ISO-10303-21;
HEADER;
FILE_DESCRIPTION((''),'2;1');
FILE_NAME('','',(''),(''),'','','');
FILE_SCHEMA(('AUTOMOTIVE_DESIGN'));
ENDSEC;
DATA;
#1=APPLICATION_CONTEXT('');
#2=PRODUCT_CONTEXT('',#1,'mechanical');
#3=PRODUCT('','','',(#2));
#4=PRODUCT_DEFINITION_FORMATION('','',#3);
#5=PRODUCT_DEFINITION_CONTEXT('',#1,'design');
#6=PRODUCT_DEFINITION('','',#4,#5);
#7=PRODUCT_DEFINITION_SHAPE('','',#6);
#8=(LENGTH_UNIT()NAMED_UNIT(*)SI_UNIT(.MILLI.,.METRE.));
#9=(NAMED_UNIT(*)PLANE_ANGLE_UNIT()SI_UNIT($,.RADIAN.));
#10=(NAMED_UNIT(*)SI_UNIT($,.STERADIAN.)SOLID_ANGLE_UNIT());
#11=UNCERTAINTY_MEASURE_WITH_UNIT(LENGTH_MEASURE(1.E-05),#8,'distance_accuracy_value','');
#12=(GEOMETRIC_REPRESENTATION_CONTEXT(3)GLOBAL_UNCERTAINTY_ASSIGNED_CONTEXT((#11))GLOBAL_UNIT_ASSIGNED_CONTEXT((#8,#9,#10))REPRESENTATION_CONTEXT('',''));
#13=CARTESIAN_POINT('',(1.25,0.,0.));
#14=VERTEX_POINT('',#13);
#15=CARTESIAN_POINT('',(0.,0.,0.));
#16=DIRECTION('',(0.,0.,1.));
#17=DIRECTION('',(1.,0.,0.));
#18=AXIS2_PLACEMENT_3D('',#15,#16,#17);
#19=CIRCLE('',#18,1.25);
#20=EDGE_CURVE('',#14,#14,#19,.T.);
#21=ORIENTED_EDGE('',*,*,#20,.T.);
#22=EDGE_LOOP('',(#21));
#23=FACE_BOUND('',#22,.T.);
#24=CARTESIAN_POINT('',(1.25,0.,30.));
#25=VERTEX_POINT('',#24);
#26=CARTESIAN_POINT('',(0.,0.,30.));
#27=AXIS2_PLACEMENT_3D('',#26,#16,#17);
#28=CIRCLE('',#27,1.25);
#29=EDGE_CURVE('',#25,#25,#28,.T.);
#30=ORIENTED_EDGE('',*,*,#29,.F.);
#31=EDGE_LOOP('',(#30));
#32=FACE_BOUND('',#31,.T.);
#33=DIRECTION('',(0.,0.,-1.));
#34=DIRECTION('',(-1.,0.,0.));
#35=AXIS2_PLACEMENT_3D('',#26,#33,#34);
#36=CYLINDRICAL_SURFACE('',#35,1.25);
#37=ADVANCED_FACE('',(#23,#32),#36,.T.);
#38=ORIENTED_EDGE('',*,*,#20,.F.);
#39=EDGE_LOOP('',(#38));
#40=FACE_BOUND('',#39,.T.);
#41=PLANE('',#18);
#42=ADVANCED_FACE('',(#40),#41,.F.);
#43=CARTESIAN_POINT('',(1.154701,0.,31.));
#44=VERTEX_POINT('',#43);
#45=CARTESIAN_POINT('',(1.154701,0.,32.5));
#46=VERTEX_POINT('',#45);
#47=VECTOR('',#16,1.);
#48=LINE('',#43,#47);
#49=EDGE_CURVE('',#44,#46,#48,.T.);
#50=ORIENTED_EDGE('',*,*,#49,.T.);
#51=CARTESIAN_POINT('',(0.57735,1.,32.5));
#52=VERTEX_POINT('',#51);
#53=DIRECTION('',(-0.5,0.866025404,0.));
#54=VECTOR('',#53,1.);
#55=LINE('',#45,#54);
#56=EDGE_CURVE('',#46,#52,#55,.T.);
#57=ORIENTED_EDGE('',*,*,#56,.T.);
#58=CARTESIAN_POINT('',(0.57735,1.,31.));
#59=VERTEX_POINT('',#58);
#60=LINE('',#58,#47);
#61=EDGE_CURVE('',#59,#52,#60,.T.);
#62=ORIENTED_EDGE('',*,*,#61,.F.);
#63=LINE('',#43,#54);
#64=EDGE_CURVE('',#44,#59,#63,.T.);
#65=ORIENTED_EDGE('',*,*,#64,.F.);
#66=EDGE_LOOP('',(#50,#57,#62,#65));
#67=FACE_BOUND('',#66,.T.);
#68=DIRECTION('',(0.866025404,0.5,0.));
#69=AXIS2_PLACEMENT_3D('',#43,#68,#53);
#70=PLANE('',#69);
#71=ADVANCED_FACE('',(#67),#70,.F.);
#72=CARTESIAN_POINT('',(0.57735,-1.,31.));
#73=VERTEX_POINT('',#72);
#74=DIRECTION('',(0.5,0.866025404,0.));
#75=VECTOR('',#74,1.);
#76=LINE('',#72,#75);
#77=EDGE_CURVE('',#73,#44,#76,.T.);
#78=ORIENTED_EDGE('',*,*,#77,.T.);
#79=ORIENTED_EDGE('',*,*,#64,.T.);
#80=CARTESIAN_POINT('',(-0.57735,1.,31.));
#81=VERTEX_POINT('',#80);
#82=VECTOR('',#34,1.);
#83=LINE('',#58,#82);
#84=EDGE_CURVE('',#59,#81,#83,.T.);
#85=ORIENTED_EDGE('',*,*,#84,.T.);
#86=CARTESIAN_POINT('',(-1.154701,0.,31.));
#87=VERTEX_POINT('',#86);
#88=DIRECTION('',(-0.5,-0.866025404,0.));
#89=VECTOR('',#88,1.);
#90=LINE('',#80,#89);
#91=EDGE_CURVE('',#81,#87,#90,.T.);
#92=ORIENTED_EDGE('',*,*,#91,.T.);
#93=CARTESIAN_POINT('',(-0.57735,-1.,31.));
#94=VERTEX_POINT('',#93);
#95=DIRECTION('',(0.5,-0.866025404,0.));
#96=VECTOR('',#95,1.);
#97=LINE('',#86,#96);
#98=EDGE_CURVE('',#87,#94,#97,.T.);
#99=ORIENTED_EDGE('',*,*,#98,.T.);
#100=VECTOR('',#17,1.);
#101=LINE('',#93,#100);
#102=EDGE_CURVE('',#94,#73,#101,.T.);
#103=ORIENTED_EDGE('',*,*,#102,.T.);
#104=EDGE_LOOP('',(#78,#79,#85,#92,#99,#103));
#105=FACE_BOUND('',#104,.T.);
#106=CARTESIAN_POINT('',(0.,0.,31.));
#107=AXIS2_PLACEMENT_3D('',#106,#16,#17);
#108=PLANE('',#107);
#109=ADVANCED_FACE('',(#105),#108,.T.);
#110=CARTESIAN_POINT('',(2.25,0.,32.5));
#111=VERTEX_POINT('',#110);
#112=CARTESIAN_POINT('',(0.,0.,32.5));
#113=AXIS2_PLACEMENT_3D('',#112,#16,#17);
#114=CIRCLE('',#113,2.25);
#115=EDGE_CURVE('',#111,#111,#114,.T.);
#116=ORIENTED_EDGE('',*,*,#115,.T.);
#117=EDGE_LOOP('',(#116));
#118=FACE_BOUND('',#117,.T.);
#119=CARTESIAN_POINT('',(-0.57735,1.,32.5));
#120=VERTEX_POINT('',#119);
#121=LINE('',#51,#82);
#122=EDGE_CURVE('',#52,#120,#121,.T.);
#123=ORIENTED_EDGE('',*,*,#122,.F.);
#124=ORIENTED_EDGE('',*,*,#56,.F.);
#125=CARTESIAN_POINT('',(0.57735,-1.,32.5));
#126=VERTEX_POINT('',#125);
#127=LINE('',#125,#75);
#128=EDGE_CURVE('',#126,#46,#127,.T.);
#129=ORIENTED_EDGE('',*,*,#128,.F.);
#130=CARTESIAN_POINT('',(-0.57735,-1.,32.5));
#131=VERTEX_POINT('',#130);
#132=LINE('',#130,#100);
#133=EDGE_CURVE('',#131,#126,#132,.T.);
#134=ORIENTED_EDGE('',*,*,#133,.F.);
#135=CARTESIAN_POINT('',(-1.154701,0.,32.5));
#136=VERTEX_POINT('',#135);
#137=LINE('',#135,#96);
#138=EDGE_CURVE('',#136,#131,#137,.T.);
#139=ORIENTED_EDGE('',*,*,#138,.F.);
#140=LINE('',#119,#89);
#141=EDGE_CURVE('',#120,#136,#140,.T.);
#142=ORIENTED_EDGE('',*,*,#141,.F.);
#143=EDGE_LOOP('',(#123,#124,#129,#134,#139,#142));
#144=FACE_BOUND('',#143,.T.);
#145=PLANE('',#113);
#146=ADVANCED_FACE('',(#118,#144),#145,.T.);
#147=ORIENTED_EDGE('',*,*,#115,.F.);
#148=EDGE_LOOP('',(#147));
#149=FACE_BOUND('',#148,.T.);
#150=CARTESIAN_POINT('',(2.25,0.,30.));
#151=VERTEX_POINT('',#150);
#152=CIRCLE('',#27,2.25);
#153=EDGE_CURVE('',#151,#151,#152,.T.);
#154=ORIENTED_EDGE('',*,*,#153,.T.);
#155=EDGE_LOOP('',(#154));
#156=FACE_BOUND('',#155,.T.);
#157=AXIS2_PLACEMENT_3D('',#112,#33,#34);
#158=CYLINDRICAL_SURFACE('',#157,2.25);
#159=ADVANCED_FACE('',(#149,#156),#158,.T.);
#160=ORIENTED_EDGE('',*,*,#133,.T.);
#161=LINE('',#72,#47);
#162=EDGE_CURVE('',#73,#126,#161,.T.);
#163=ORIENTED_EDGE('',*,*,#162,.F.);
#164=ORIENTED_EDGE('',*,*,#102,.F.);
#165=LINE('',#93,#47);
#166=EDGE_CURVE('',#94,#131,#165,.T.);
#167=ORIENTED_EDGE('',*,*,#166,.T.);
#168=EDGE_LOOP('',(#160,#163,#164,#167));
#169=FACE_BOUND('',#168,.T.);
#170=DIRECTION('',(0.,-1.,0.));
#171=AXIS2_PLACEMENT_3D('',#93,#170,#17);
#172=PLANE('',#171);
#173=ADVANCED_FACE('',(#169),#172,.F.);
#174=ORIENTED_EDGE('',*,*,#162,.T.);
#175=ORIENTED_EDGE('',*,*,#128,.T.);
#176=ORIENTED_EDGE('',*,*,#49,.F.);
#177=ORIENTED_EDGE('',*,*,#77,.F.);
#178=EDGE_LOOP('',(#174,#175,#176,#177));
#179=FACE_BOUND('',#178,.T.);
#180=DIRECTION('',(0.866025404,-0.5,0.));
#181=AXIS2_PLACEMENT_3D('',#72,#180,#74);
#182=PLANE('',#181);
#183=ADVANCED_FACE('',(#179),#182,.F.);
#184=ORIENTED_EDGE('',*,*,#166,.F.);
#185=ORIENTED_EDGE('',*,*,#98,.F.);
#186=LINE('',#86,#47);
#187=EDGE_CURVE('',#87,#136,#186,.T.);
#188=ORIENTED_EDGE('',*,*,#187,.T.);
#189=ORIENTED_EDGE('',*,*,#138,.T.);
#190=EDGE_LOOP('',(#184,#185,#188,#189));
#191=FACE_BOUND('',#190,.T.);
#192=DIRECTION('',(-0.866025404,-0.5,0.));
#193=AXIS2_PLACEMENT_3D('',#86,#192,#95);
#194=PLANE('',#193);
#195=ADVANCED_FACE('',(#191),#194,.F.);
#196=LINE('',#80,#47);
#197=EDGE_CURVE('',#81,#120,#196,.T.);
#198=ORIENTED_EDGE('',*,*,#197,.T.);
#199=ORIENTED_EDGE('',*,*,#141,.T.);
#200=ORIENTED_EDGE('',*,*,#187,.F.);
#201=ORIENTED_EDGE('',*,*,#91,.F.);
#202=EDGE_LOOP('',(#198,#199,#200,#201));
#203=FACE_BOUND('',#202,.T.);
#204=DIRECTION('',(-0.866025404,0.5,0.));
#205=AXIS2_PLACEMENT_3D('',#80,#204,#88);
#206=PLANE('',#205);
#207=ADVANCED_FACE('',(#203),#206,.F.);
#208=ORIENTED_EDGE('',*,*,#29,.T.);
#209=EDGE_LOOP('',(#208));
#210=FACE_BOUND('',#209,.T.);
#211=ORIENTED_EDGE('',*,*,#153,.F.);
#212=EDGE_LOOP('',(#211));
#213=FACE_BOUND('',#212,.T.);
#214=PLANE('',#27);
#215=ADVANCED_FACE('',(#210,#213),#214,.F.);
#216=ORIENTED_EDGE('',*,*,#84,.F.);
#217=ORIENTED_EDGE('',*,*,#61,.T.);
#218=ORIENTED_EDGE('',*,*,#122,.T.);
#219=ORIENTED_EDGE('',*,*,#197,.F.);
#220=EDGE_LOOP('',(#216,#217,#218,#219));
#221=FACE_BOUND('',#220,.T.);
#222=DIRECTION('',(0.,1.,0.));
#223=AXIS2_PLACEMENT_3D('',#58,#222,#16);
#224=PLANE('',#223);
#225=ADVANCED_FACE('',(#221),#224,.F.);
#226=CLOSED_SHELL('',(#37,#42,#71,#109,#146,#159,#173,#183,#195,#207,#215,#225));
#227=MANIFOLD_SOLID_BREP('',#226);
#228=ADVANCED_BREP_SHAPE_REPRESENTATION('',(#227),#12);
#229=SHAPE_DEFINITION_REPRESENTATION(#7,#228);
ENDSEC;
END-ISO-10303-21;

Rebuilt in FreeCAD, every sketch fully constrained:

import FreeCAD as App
import Part
import Sketcher

V = App.Vector
Q = App.Units.Quantity

doc = App.newDocument("Part")
body = doc.addObject("PartDesign::Body", "Body")

# Sketch on XY plane
sketch1 = body.newObject("Sketcher::SketchObject", "Sketch")
sketch1.AttachmentSupport = (doc.getObject("XY_Plane"), [""])
sketch1.MapMode = "FlatFace"
sketch1.addGeometry(Part.Circle(V(0, 0, 0), V(0, 0, 1), 1.2), False)
sketch1.addConstraint(Sketcher.Constraint("Coincident", 0, 3, -1, 1))
sketch1.addConstraint(Sketcher.Constraint("Diameter", 0, Q("2.5 mm")))
pad1 = body.newObject("PartDesign::Pad", "Pad")
pad1.Profile = sketch1
pad1.Length = 30

# Sketch on XY plane
sketch2 = body.newObject("Sketcher::SketchObject", "Sketch001")
sketch2.AttachmentSupport = (doc.getObject("XY_Plane"), [""])
sketch2.MapMode = "FlatFace"
sketch2.AttachmentOffset = App.Placement(V(0, 0, 30), App.Rotation())
sketch2.addGeometry(Part.Circle(V(0, 0, 0), V(0, 0, 1), 2.2), False)
sketch2.addConstraint(Sketcher.Constraint("Coincident", 0, 3, -1, 1))
sketch2.addConstraint(Sketcher.Constraint("Diameter", 0, Q("4.5 mm")))
pad2 = body.newObject("PartDesign::Pad", "Pad001")
pad2.Profile = sketch2
pad2.Length = 2.5

# Sketch on XY plane
sketch3 = body.newObject("Sketcher::SketchObject", "Sketch002")
sketch3.AttachmentSupport = (doc.getObject("XY_Plane"), [""])
sketch3.MapMode = "FlatFace"
sketch3.AttachmentOffset = App.Placement(V(0, 0, 32.5), App.Rotation())
sketch3.addGeometry(Part.LineSegment(V(1.2, 0, 0), V(0.6, 1, 0)), False)
sketch3.addGeometry(Part.LineSegment(V(0.6, 1, 0), V(-0.6, 1, 0)), False)
sketch3.addGeometry(Part.LineSegment(V(-0.6, 1, 0), V(-1.2, 0, 0)), False)
sketch3.addGeometry(Part.LineSegment(V(-1.2, 0, 0), V(-0.6, -1, 0)), False)
sketch3.addGeometry(Part.LineSegment(V(-0.6, -1, 0), V(0.6, -1, 0)), False)
sketch3.addGeometry(Part.LineSegment(V(0.6, -1, 0), V(1.2, 0, 0)), False)
sketch3.addConstraint(Sketcher.Constraint("Coincident", 0, 2, 1, 1))
sketch3.addConstraint(Sketcher.Constraint("Coincident", 1, 2, 2, 1))
sketch3.addConstraint(Sketcher.Constraint("Coincident", 2, 2, 3, 1))
sketch3.addConstraint(Sketcher.Constraint("Coincident", 3, 2, 4, 1))
sketch3.addConstraint(Sketcher.Constraint("Coincident", 4, 2, 5, 1))
sketch3.addConstraint(Sketcher.Constraint("Coincident", 5, 2, 0, 1))
sketch3.addConstraint(Sketcher.Constraint("Horizontal", 1))
sketch3.addConstraint(Sketcher.Constraint("Horizontal", 4))
sketch3.addConstraint(Sketcher.Constraint("Symmetric", 0, 2, 3, 2, -1, 1))
sketch3.addConstraint(Sketcher.Constraint("Symmetric", 2, 2, 5, 2, -1, 1))
sketch3.addConstraint(Sketcher.Constraint("PointOnObject", 2, 2, -1))
sketch3.addConstraint(Sketcher.Constraint("Parallel", 2, 5))
sketch3.addConstraint(Sketcher.Constraint("Vertical", 1, 2, 3, 2))
sketch3.addConstraint(Sketcher.Constraint("Angle", 0, Q("120 deg")))
sketch3.addConstraint(Sketcher.Constraint("DistanceY", -1, 1, 0, 2, Q("1 mm")))
sketch3.addConstraint(Sketcher.Constraint("DistanceX", 1, 2, 1, 1, Q("1.154701 mm")))
pocket1 = body.newObject("PartDesign::Pocket", "Pocket")
pocket1.Profile = sketch3
pocket1.Length = 1.5

doc.recompute()
